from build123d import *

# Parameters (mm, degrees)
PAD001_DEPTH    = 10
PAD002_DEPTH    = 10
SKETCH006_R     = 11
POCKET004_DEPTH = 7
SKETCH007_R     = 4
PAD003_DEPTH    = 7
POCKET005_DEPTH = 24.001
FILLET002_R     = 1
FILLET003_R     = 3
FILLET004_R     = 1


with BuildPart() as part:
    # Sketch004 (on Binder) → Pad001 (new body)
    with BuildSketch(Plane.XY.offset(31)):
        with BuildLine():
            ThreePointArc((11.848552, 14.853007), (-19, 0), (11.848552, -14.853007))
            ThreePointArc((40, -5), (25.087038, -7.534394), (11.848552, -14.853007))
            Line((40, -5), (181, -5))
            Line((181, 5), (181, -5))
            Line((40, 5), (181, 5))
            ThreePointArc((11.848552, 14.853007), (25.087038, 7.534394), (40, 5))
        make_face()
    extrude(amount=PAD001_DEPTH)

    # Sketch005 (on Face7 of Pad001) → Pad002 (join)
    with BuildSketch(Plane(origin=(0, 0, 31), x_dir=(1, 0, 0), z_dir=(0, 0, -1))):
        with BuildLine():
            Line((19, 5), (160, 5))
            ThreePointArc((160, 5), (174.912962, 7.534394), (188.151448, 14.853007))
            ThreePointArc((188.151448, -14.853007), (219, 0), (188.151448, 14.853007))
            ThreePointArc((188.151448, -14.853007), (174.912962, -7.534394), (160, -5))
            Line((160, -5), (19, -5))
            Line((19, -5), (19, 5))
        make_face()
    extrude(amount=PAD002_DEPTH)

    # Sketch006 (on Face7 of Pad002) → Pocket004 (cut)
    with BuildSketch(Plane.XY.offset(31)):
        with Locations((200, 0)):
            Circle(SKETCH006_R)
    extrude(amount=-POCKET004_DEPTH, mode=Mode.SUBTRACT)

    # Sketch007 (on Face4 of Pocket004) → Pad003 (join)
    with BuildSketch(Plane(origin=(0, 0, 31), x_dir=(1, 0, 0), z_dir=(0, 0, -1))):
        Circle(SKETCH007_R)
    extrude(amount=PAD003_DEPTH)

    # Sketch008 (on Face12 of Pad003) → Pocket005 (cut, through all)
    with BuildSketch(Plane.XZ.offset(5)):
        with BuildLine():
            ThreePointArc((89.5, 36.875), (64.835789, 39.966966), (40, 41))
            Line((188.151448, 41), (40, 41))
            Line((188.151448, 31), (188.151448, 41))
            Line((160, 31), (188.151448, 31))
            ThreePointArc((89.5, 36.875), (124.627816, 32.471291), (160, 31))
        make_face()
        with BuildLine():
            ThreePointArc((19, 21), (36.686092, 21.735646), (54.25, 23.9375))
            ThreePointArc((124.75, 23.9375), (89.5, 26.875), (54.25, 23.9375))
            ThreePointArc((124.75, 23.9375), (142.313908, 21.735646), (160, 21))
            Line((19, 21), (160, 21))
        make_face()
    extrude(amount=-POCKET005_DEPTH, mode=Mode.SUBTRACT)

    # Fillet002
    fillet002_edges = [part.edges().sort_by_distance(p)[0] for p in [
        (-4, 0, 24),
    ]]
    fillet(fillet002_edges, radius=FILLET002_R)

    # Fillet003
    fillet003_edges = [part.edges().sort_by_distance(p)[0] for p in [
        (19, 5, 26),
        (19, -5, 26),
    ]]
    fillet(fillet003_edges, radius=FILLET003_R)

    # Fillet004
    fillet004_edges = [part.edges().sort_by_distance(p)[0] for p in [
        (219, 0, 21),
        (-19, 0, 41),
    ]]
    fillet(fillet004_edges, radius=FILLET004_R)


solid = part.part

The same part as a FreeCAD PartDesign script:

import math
import FreeCAD as App
import Part
import Sketcher

V = App.Vector
Q = App.Units.Quantity


def edges_at(feature, points):
    """Names of the edges that pass closest to the given points."""
    edges = feature.Shape.Edges
    near = lambda p: min(range(len(edges)), key=lambda i: edges[i].distToShape(Part.Vertex(*p))[0])
    return sorted({f"Edge{near(p) + 1}" for p in points})

doc = App.newDocument("Part")
params = doc.addObject("Spreadsheet::Sheet", "Params")
for row, (alias, value) in enumerate([
    ("sketch1_radius", "19 mm"),
    ("sketch1_width", "141 mm"),
    ("sketch1_height", "10 mm"),
    ("pad1_length", "10 mm"),
    ("sketch2_radius", "19 mm"),
    ("sketch2_width", "141 mm"),
    ("sketch2_height", "10 mm"),
    ("pad2_length", "10 mm"),
    ("sketch3_diameter", "22 mm"),
    ("pocket1_length", "7 mm"),
    ("sketch4_diameter", "8 mm"),
    ("pad3_length", "7 mm"),
    ("sketch5_width", "141 mm"),
    ("sketch5_height", "10 mm"),
    ("fillet_radius", "1 mm"),
    ("fillet2_radius", "3 mm"),
    ("fillet3_radius", "1 mm"),
], start=1):
    params.set(f"A{row}", alias)
    params.set(f"B{row}", "=" + value)
    params.setAlias(f"B{row}", alias)

body = doc.addObject("PartDesign::Body", "Body")

sketch1 = body.newObject("Sketcher::SketchObject", "Sketch")
sketch1.AttachmentSupport = (doc.getObject("XY_Plane"), [""])
sketch1.MapMode = "FlatFace"
sketch1.AttachmentOffset = App.Placement(V(0, 0, 31), App.Rotation())
sketch1.addGeometry([
    Part.ArcOfCircle(Part.Circle(V(0, 0, 0), V(0, 0, 1), 19), math.radians(51), math.radians(309)),
    Part.ArcOfCircle(Part.Circle(V(40, -50, 0), V(0, 0, 1), 45), math.radians(90), math.radians(129)),
    Part.LineSegment(V(40, -5, 0), V(181, -5, 0)),
    Part.LineSegment(V(181, -5, 0), V(181, 5, 0)),
    Part.LineSegment(V(181, 5, 0), V(40, 5, 0)),
    Part.ArcOfCircle(Part.Circle(V(40, 50, 0), V(0, 0, 1), 45), math.radians(-129), math.radians(-90)),
], False)
sketch1.addConstraint([
    Sketcher.Constraint("Tangent", 0, 2, 1, 2),
    Sketcher.Constraint("Tangent", 1, 1, 2, 1),
    Sketcher.Constraint("Coincident", 2, 2, 3, 1),
    Sketcher.Constraint("Coincident", 3, 2, 4, 1),
    Sketcher.Constraint("Tangent", 4, 2, 5, 2),
    Sketcher.Constraint("Tangent", 5, 1, 0, 1),
    Sketcher.Constraint("Horizontal", 2),
    Sketcher.Constraint("Vertical", 3),
    Sketcher.Constraint("Horizontal", 4),
    Sketcher.Constraint("Coincident", 0, 3, -1, 1),
    Sketcher.Constraint("Equal", 1, 5),
    Sketcher.Constraint("Vertical", 1, 3, 5, 3),
    Sketcher.Constraint("Radius", 0, Q("19 mm")),
    Sketcher.Constraint("DistanceX", 2, 1, 2, 2, Q("141 mm")),
    Sketcher.Constraint("DistanceY", 3, 1, 3, 2, Q("10 mm")),
    Sketcher.Constraint("DistanceX", -1, 1, 1, 3, Q("39.999999 mm")),
])
sketch1.setExpression("Constraints[12]", "Params.sketch1_radius")
sketch1.setExpression("Constraints[13]", "Params.sketch1_width")
sketch1.setExpression("Constraints[14]", "Params.sketch1_height")
pad1 = body.newObject("PartDesign::Pad", "Pad")
pad1.Profile = sketch1
pad1.setExpression("Length", "Params.pad1_length")

sketch2 = body.newObject("Sketcher::SketchObject", "Sketch001")
sketch2.AttachmentSupport = (doc.getObject("XY_Plane"), [""])
sketch2.MapMode = "FlatFace"
sketch2.AttachmentOffset = App.Placement(V(0, 0, 31), App.Rotation())
sketch2.addGeometry([
    Part.LineSegment(V(160, -5, 0), V(19, -5, 0)),
    Part.LineSegment(V(19, -5, 0), V(19, 5, 0)),
    Part.LineSegment(V(19, 5, 0), V(160, 5, 0)),
    Part.ArcOfCircle(Part.Circle(V(160, 50, 0), V(0, 0, 1), 45), math.radians(-90), math.radians(-51)),
    Part.ArcOfCircle(Part.Circle(V(200, 0, 0), V(0, 0, 1), 19), math.radians(-129), math.radians(129)),
    Part.ArcOfCircle(Part.Circle(V(160, -50, 0), V(0, 0, 1), 45), math.radians(51), math.radians(90)),
], False)
sketch2.addConstraint([
    Sketcher.Constraint("Coincident", 0, 2, 1, 1),
    Sketcher.Constraint("Coincident", 1, 2, 2, 1),
    Sketcher.Constraint("Tangent", 2, 2, 3, 1),
    Sketcher.Constraint("Tangent", 3, 2, 4, 2),
    Sketcher.Constraint("Tangent", 4, 1, 5, 1),
    Sketcher.Constraint("Tangent", 5, 2, 0, 1),
    Sketcher.Constraint("Horizontal", 0),
    Sketcher.Constraint("Vertical", 1),
    Sketcher.Constraint("Horizontal", 2),
    Sketcher.Constraint("Equal", 3, 5),
    Sketcher.Constraint("Symmetric", 3, 3, 5, 3, -1),
    Sketcher.Constraint("Radius", 4, Q("19 mm")),
    Sketcher.Constraint("DistanceX", 0, 2, 0, 1, Q("141 mm")),
    Sketcher.Constraint("DistanceY", 1, 1, 1, 2, Q("10 mm")),
    Sketcher.Constraint("DistanceX", -1, 1, 3, 3, Q("160.000001 mm")),
    Sketcher.Constraint("DistanceX", -1, 1, 4, 3, Q("200 mm")),
])
sketch2.setExpression("Constraints[11]", "Params.sketch2_radius")
sketch2.setExpression("Constraints[12]", "Params.sketch2_width")
sketch2.setExpression("Constraints[13]", "Params.sketch2_height")
pad2 = body.newObject("PartDesign::Pad", "Pad001")
pad2.Profile = sketch2
pad2.setExpression("Length", "Params.pad2_length")
pad2.Reversed = True

sketch3 = body.newObject("Sketcher::SketchObject", "Sketch002")
sketch3.AttachmentSupport = (doc.getObject("XY_Plane"), [""])
sketch3.MapMode = "FlatFace"
sketch3.AttachmentOffset = App.Placement(V(0, 0, 31), App.Rotation())
sketch3.addGeometry(Part.Circle(V(200, 0, 0), V(0, 0, 1), 11), False)
sketch3.addConstraint([
    Sketcher.Constraint("PointOnObject", 0, 3, -1),
    Sketcher.Constraint("Diameter", 0, Q("22 mm")),
    Sketcher.Constraint("DistanceX", -1, 1, 0, 3, Q("200 mm")),
])
sketch3.setExpression("Constraints[1]", "Params.sketch3_diameter")
pocket1 = body.newObject("PartDesign::Pocket", "Pocket")
pocket1.Profile = sketch3
pocket1.setExpression("Length", "Params.pocket1_length")

sketch4 = body.newObject("Sketcher::SketchObject", "Sketch003")
sketch4.AttachmentSupport = (doc.getObject("XY_Plane"), [""])
sketch4.MapMode = "FlatFace"
sketch4.AttachmentOffset = App.Placement(V(0, 0, 31), App.Rotation())
sketch4.addGeometry(Part.Circle(V(0, 0, 0), V(0, 0, 1), 4), False)
sketch4.addConstraint([
    Sketcher.Constraint("Coincident", 0, 3, -1, 1),
    Sketcher.Constraint("Diameter", 0, Q("8 mm")),
])
sketch4.setExpression("Constraints[1]", "Params.sketch4_diameter")
pad3 = body.newObject("PartDesign::Pad", "Pad002")
pad3.Profile = sketch4
pad3.setExpression("Length", "Params.pad3_length")
pad3.Reversed = True

sketch5 = body.newObject("Sketcher::SketchObject", "Sketch004")
sketch5.AttachmentSupport = (doc.getObject("XZ_Plane"), [""])
sketch5.MapMode = "FlatFace"
sketch5.AttachmentOffset = App.Placement(V(0, 0, 5), App.Rotation())
sketch5.addGeometry([
    Part.ArcOfCircle(Part.Circle(V(40.000005, -258.062445, 0), V(0, 0, 1), 299.062445), math.radians(80.472716), math.radians(90.000001)),
    Part.ArcOfCircle(Part.Circle(V(159.999998, 456.937474, 0), V(0, 0, 1), 425.937474), math.radians(-99.527284), math.radians(-90)),
    Part.LineSegment(V(160, 31, 0), V(188.151448, 31, 0)),
    Part.LineSegment(V(188.151448, 31, 0), V(188.151448, 41, 0)),
    Part.LineSegment(V(188.151448, 41, 0), V(40, 41, 0)),
    Part.ArcOfCircle(Part.Circle(V(18.999989, 233.968881, 0), V(0, 0, 1), 212.968881), math.radians(-89.999997), math.radians(-80.47272)),
    Part.LineSegment(V(19, 21, 0), V(160, 21, 0)),
    Part.ArcOfCircle(Part.Circle(V(160.000011, 233.968881, 0), V(0, 0, 1), 212.968881), math.radians(-99.52728), math.radians(-90.000003)),
    Part.ArcOfCircle(Part.Circle(V(89.5, -186.09375, 0), V(0, 0, 1), 212.96875), math.radians(80.472717), math.radians(99.527283)),
], False)
sketch5.addConstraint([
    Sketcher.Constraint("Tangent", 0, 1, 1, 1),
    Sketcher.Constraint("Tangent", 1, 2, 2, 1),
    Sketcher.Constraint("Coincident", 2, 2, 3, 1),
    Sketcher.Constraint("Coincident", 3, 2, 4, 1),
    Sketcher.Constraint("Tangent", 4, 2, 0, 2),
    Sketcher.Constraint("Tangent", 5, 1, 6, 1),
    Sketcher.Constraint("Tangent", 6, 2, 7, 2),
    Sketcher.Constraint("Tangent", 7, 1, 8, 1),
    Sketcher.Constraint("Tangent", 8, 2, 5, 2),
    Sketcher.Constraint("Horizontal", 2),
    Sketcher.Constraint("Vertical", 3),
    Sketcher.Constraint("Horizontal", 4),
    Sketcher.Constraint("Horizontal", 6),
    Sketcher.Constraint("Equal", 5, 7),
    Sketcher.Constraint("Vertical", 8, 3, 0, 1),
    Sketcher.Constraint("DistanceX", 6, 1, 6, 2, Q("141 mm")),
    Sketcher.Constraint("DistanceY", 3, 1, 3, 2, Q("10 mm")),
    Sketcher.Constraint("DistanceY", -1, 1, 1, 2, Q("31 mm")),
    Sketcher.Constraint("DistanceX", -1, 1, 4, 2, Q("40 mm")),
    Sketcher.Constraint("DistanceY", -1, 1, 5, 1, Q("21 mm")),
    Sketcher.Constraint("DistanceX", -1, 1, 6, 2, Q("160 mm")),
    Sketcher.Constraint("Radius", 5, Q("212.968881 mm")),
    Sketcher.Constraint("Radius", 8, Q("212.96875 mm")),
    Sketcher.Constraint("Radius", 0, Q("299.062445 mm")),
    Sketcher.Constraint("DistanceX", 2, 1, 2, 2, Q("28.151448 mm")),
])
sketch5.setExpression("Constraints[15]", "Params.sketch5_width")
sketch5.setExpression("Constraints[16]", "Params.sketch5_height")
pocket2 = body.newObject("PartDesign::Pocket", "Pocket001")
pocket2.Profile = sketch5
pocket2.Type = "ThroughAll"
doc.recompute()

fillet = body.newObject("PartDesign::Fillet", "Fillet")
fillet.Base = (pocket2, edges_at(pocket2, [(-4, 0, 24)]))
fillet.setExpression("Radius", "Params.fillet_radius")
doc.recompute()

fillet2 = body.newObject("PartDesign::Fillet", "Fillet001")
fillet2.Base = (fillet, edges_at(fillet, [(19, 5, 26), (19, -5, 26)]))
fillet2.setExpression("Radius", "Params.fillet2_radius")
doc.recompute()

fillet3 = body.newObject("PartDesign::Fillet", "Fillet002")
fillet3.Base = (fillet2, edges_at(fillet2, [(219, 0, 21), (-19, 0, 41)]))
fillet3.setExpression("Radius", "Params.fillet3_radius")

doc.recompute()
